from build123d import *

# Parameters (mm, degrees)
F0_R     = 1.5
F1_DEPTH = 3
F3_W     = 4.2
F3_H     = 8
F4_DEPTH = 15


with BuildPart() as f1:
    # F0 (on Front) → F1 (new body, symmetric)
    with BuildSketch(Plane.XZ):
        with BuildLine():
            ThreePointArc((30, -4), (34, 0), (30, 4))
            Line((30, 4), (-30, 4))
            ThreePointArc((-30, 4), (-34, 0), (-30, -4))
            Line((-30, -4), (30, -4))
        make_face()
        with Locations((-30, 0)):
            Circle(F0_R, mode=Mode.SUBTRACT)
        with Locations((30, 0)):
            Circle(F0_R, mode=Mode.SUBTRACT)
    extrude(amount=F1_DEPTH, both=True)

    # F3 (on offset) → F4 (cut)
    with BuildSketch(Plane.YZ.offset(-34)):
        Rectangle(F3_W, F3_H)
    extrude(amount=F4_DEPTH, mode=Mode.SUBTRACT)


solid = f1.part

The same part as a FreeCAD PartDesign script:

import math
import FreeCAD as App
import Part
import Sketcher

V = App.Vector


def add_polygon(sketch, points):
    """Adds a closed chain of lines whose ends are joined by coincident constraints."""
    first, n = sketch.GeometryCount, len(points)
    for a, b in zip(points, points[1:] + points[:1]):
        sketch.addGeometry(Part.LineSegment(App.Vector(*a, 0), App.Vector(*b, 0)), False)
    for i in range(n):
        sketch.addConstraint(Sketcher.Constraint("Coincident", first + i, 2, first + (i + 1) % n, 1))

doc = App.newDocument("Part")
body = doc.addObject("PartDesign::Body", "Body")

# Sketch on XZ plane
sketch1 = body.newObject("Sketcher::SketchObject", "Sketch")
sketch1.AttachmentSupport = (doc.getObject("XZ_Plane"), [""])
sketch1.MapMode = "FlatFace"
sketch1.addGeometry([
    Part.ArcOfCircle(Part.Circle(V(30, 0, 0), V(0, 0, 1), 4), math.radians(-90), math.radians(90)),  # 0
    Part.LineSegment(V(30, 4, 0), V(-30, 4, 0)),  # 1
    Part.ArcOfCircle(Part.Circle(V(-30, 0, 0), V(0, 0, 1), 4), math.radians(90), math.radians(270)),  # 2
    Part.LineSegment(V(-30, -4, 0), V(30, -4, 0)),  # 3
    Part.Circle(V(-30, 0, 0), V(0, 0, 1), 1.5),  # 4
    Part.Circle(V(30, 0, 0), V(0, 0, 1), 1.5),  # 5
], False)
sketch1.addConstraint([
    Sketcher.Constraint("Tangent", 0, 2, 1, 1),
    Sketcher.Constraint("Tangent", 1, 2, 2, 1),
    Sketcher.Constraint("Tangent", 2, 2, 3, 1),
    Sketcher.Constraint("Tangent", 3, 2, 0, 1),
    Sketcher.Constraint("Horizontal", 1),
    Sketcher.Constraint("Horizontal", 3),
    Sketcher.Constraint("Coincident", 4, 3, 2, 3),
    Sketcher.Constraint("Coincident", 5, 3, 0, 3),
    Sketcher.Constraint("Equal", 4, 5),
    Sketcher.Constraint("Symmetric", 0, 3, 2, 3, -1, 1),
    Sketcher.Constraint("Diameter", 4, 3.0),
    Sketcher.Constraint("Radius", 0, 4.0),
    Sketcher.Constraint("DistanceX", 1, 2, 1, 1, 60.0),
])
pad1 = body.newObject("PartDesign::Pad", "Pad")
pad1.Profile = sketch1
pad1.Length = 6
pad1.Midplane = True

# Sketch on YZ plane
sketch2 = body.newObject("Sketcher::SketchObject", "Sketch001")
sketch2.AttachmentSupport = (doc.getObject("YZ_Plane"), [""])
sketch2.MapMode = "FlatFace"
sketch2.AttachmentOffset = App.Placement(V(0, 0, -34), App.Rotation())
add_polygon(sketch2, [(-2.1, 4), (-2.1, -4), (2.1, -4), (2.1, 4)])  # lines 0-3
sketch2.addConstraint([
    Sketcher.Constraint("Vertical", 0),
    Sketcher.Constraint("Horizontal", 1),
    Sketcher.Constraint("Vertical", 2),
    Sketcher.Constraint("Horizontal", 3),
    Sketcher.Constraint("Symmetric", 0, 2, 2, 2, -1, 1),
    Sketcher.Constraint("DistanceY", 0, 2, 0, 1, 8.0),
    Sketcher.Constraint("DistanceX", 1, 1, 1, 2, 4.2),
])
pocket1 = body.newObject("PartDesign::Pocket", "Pocket")
pocket1.Profile = sketch2
pocket1.Length = 15
pocket1.Reversed = True

doc.recompute()
